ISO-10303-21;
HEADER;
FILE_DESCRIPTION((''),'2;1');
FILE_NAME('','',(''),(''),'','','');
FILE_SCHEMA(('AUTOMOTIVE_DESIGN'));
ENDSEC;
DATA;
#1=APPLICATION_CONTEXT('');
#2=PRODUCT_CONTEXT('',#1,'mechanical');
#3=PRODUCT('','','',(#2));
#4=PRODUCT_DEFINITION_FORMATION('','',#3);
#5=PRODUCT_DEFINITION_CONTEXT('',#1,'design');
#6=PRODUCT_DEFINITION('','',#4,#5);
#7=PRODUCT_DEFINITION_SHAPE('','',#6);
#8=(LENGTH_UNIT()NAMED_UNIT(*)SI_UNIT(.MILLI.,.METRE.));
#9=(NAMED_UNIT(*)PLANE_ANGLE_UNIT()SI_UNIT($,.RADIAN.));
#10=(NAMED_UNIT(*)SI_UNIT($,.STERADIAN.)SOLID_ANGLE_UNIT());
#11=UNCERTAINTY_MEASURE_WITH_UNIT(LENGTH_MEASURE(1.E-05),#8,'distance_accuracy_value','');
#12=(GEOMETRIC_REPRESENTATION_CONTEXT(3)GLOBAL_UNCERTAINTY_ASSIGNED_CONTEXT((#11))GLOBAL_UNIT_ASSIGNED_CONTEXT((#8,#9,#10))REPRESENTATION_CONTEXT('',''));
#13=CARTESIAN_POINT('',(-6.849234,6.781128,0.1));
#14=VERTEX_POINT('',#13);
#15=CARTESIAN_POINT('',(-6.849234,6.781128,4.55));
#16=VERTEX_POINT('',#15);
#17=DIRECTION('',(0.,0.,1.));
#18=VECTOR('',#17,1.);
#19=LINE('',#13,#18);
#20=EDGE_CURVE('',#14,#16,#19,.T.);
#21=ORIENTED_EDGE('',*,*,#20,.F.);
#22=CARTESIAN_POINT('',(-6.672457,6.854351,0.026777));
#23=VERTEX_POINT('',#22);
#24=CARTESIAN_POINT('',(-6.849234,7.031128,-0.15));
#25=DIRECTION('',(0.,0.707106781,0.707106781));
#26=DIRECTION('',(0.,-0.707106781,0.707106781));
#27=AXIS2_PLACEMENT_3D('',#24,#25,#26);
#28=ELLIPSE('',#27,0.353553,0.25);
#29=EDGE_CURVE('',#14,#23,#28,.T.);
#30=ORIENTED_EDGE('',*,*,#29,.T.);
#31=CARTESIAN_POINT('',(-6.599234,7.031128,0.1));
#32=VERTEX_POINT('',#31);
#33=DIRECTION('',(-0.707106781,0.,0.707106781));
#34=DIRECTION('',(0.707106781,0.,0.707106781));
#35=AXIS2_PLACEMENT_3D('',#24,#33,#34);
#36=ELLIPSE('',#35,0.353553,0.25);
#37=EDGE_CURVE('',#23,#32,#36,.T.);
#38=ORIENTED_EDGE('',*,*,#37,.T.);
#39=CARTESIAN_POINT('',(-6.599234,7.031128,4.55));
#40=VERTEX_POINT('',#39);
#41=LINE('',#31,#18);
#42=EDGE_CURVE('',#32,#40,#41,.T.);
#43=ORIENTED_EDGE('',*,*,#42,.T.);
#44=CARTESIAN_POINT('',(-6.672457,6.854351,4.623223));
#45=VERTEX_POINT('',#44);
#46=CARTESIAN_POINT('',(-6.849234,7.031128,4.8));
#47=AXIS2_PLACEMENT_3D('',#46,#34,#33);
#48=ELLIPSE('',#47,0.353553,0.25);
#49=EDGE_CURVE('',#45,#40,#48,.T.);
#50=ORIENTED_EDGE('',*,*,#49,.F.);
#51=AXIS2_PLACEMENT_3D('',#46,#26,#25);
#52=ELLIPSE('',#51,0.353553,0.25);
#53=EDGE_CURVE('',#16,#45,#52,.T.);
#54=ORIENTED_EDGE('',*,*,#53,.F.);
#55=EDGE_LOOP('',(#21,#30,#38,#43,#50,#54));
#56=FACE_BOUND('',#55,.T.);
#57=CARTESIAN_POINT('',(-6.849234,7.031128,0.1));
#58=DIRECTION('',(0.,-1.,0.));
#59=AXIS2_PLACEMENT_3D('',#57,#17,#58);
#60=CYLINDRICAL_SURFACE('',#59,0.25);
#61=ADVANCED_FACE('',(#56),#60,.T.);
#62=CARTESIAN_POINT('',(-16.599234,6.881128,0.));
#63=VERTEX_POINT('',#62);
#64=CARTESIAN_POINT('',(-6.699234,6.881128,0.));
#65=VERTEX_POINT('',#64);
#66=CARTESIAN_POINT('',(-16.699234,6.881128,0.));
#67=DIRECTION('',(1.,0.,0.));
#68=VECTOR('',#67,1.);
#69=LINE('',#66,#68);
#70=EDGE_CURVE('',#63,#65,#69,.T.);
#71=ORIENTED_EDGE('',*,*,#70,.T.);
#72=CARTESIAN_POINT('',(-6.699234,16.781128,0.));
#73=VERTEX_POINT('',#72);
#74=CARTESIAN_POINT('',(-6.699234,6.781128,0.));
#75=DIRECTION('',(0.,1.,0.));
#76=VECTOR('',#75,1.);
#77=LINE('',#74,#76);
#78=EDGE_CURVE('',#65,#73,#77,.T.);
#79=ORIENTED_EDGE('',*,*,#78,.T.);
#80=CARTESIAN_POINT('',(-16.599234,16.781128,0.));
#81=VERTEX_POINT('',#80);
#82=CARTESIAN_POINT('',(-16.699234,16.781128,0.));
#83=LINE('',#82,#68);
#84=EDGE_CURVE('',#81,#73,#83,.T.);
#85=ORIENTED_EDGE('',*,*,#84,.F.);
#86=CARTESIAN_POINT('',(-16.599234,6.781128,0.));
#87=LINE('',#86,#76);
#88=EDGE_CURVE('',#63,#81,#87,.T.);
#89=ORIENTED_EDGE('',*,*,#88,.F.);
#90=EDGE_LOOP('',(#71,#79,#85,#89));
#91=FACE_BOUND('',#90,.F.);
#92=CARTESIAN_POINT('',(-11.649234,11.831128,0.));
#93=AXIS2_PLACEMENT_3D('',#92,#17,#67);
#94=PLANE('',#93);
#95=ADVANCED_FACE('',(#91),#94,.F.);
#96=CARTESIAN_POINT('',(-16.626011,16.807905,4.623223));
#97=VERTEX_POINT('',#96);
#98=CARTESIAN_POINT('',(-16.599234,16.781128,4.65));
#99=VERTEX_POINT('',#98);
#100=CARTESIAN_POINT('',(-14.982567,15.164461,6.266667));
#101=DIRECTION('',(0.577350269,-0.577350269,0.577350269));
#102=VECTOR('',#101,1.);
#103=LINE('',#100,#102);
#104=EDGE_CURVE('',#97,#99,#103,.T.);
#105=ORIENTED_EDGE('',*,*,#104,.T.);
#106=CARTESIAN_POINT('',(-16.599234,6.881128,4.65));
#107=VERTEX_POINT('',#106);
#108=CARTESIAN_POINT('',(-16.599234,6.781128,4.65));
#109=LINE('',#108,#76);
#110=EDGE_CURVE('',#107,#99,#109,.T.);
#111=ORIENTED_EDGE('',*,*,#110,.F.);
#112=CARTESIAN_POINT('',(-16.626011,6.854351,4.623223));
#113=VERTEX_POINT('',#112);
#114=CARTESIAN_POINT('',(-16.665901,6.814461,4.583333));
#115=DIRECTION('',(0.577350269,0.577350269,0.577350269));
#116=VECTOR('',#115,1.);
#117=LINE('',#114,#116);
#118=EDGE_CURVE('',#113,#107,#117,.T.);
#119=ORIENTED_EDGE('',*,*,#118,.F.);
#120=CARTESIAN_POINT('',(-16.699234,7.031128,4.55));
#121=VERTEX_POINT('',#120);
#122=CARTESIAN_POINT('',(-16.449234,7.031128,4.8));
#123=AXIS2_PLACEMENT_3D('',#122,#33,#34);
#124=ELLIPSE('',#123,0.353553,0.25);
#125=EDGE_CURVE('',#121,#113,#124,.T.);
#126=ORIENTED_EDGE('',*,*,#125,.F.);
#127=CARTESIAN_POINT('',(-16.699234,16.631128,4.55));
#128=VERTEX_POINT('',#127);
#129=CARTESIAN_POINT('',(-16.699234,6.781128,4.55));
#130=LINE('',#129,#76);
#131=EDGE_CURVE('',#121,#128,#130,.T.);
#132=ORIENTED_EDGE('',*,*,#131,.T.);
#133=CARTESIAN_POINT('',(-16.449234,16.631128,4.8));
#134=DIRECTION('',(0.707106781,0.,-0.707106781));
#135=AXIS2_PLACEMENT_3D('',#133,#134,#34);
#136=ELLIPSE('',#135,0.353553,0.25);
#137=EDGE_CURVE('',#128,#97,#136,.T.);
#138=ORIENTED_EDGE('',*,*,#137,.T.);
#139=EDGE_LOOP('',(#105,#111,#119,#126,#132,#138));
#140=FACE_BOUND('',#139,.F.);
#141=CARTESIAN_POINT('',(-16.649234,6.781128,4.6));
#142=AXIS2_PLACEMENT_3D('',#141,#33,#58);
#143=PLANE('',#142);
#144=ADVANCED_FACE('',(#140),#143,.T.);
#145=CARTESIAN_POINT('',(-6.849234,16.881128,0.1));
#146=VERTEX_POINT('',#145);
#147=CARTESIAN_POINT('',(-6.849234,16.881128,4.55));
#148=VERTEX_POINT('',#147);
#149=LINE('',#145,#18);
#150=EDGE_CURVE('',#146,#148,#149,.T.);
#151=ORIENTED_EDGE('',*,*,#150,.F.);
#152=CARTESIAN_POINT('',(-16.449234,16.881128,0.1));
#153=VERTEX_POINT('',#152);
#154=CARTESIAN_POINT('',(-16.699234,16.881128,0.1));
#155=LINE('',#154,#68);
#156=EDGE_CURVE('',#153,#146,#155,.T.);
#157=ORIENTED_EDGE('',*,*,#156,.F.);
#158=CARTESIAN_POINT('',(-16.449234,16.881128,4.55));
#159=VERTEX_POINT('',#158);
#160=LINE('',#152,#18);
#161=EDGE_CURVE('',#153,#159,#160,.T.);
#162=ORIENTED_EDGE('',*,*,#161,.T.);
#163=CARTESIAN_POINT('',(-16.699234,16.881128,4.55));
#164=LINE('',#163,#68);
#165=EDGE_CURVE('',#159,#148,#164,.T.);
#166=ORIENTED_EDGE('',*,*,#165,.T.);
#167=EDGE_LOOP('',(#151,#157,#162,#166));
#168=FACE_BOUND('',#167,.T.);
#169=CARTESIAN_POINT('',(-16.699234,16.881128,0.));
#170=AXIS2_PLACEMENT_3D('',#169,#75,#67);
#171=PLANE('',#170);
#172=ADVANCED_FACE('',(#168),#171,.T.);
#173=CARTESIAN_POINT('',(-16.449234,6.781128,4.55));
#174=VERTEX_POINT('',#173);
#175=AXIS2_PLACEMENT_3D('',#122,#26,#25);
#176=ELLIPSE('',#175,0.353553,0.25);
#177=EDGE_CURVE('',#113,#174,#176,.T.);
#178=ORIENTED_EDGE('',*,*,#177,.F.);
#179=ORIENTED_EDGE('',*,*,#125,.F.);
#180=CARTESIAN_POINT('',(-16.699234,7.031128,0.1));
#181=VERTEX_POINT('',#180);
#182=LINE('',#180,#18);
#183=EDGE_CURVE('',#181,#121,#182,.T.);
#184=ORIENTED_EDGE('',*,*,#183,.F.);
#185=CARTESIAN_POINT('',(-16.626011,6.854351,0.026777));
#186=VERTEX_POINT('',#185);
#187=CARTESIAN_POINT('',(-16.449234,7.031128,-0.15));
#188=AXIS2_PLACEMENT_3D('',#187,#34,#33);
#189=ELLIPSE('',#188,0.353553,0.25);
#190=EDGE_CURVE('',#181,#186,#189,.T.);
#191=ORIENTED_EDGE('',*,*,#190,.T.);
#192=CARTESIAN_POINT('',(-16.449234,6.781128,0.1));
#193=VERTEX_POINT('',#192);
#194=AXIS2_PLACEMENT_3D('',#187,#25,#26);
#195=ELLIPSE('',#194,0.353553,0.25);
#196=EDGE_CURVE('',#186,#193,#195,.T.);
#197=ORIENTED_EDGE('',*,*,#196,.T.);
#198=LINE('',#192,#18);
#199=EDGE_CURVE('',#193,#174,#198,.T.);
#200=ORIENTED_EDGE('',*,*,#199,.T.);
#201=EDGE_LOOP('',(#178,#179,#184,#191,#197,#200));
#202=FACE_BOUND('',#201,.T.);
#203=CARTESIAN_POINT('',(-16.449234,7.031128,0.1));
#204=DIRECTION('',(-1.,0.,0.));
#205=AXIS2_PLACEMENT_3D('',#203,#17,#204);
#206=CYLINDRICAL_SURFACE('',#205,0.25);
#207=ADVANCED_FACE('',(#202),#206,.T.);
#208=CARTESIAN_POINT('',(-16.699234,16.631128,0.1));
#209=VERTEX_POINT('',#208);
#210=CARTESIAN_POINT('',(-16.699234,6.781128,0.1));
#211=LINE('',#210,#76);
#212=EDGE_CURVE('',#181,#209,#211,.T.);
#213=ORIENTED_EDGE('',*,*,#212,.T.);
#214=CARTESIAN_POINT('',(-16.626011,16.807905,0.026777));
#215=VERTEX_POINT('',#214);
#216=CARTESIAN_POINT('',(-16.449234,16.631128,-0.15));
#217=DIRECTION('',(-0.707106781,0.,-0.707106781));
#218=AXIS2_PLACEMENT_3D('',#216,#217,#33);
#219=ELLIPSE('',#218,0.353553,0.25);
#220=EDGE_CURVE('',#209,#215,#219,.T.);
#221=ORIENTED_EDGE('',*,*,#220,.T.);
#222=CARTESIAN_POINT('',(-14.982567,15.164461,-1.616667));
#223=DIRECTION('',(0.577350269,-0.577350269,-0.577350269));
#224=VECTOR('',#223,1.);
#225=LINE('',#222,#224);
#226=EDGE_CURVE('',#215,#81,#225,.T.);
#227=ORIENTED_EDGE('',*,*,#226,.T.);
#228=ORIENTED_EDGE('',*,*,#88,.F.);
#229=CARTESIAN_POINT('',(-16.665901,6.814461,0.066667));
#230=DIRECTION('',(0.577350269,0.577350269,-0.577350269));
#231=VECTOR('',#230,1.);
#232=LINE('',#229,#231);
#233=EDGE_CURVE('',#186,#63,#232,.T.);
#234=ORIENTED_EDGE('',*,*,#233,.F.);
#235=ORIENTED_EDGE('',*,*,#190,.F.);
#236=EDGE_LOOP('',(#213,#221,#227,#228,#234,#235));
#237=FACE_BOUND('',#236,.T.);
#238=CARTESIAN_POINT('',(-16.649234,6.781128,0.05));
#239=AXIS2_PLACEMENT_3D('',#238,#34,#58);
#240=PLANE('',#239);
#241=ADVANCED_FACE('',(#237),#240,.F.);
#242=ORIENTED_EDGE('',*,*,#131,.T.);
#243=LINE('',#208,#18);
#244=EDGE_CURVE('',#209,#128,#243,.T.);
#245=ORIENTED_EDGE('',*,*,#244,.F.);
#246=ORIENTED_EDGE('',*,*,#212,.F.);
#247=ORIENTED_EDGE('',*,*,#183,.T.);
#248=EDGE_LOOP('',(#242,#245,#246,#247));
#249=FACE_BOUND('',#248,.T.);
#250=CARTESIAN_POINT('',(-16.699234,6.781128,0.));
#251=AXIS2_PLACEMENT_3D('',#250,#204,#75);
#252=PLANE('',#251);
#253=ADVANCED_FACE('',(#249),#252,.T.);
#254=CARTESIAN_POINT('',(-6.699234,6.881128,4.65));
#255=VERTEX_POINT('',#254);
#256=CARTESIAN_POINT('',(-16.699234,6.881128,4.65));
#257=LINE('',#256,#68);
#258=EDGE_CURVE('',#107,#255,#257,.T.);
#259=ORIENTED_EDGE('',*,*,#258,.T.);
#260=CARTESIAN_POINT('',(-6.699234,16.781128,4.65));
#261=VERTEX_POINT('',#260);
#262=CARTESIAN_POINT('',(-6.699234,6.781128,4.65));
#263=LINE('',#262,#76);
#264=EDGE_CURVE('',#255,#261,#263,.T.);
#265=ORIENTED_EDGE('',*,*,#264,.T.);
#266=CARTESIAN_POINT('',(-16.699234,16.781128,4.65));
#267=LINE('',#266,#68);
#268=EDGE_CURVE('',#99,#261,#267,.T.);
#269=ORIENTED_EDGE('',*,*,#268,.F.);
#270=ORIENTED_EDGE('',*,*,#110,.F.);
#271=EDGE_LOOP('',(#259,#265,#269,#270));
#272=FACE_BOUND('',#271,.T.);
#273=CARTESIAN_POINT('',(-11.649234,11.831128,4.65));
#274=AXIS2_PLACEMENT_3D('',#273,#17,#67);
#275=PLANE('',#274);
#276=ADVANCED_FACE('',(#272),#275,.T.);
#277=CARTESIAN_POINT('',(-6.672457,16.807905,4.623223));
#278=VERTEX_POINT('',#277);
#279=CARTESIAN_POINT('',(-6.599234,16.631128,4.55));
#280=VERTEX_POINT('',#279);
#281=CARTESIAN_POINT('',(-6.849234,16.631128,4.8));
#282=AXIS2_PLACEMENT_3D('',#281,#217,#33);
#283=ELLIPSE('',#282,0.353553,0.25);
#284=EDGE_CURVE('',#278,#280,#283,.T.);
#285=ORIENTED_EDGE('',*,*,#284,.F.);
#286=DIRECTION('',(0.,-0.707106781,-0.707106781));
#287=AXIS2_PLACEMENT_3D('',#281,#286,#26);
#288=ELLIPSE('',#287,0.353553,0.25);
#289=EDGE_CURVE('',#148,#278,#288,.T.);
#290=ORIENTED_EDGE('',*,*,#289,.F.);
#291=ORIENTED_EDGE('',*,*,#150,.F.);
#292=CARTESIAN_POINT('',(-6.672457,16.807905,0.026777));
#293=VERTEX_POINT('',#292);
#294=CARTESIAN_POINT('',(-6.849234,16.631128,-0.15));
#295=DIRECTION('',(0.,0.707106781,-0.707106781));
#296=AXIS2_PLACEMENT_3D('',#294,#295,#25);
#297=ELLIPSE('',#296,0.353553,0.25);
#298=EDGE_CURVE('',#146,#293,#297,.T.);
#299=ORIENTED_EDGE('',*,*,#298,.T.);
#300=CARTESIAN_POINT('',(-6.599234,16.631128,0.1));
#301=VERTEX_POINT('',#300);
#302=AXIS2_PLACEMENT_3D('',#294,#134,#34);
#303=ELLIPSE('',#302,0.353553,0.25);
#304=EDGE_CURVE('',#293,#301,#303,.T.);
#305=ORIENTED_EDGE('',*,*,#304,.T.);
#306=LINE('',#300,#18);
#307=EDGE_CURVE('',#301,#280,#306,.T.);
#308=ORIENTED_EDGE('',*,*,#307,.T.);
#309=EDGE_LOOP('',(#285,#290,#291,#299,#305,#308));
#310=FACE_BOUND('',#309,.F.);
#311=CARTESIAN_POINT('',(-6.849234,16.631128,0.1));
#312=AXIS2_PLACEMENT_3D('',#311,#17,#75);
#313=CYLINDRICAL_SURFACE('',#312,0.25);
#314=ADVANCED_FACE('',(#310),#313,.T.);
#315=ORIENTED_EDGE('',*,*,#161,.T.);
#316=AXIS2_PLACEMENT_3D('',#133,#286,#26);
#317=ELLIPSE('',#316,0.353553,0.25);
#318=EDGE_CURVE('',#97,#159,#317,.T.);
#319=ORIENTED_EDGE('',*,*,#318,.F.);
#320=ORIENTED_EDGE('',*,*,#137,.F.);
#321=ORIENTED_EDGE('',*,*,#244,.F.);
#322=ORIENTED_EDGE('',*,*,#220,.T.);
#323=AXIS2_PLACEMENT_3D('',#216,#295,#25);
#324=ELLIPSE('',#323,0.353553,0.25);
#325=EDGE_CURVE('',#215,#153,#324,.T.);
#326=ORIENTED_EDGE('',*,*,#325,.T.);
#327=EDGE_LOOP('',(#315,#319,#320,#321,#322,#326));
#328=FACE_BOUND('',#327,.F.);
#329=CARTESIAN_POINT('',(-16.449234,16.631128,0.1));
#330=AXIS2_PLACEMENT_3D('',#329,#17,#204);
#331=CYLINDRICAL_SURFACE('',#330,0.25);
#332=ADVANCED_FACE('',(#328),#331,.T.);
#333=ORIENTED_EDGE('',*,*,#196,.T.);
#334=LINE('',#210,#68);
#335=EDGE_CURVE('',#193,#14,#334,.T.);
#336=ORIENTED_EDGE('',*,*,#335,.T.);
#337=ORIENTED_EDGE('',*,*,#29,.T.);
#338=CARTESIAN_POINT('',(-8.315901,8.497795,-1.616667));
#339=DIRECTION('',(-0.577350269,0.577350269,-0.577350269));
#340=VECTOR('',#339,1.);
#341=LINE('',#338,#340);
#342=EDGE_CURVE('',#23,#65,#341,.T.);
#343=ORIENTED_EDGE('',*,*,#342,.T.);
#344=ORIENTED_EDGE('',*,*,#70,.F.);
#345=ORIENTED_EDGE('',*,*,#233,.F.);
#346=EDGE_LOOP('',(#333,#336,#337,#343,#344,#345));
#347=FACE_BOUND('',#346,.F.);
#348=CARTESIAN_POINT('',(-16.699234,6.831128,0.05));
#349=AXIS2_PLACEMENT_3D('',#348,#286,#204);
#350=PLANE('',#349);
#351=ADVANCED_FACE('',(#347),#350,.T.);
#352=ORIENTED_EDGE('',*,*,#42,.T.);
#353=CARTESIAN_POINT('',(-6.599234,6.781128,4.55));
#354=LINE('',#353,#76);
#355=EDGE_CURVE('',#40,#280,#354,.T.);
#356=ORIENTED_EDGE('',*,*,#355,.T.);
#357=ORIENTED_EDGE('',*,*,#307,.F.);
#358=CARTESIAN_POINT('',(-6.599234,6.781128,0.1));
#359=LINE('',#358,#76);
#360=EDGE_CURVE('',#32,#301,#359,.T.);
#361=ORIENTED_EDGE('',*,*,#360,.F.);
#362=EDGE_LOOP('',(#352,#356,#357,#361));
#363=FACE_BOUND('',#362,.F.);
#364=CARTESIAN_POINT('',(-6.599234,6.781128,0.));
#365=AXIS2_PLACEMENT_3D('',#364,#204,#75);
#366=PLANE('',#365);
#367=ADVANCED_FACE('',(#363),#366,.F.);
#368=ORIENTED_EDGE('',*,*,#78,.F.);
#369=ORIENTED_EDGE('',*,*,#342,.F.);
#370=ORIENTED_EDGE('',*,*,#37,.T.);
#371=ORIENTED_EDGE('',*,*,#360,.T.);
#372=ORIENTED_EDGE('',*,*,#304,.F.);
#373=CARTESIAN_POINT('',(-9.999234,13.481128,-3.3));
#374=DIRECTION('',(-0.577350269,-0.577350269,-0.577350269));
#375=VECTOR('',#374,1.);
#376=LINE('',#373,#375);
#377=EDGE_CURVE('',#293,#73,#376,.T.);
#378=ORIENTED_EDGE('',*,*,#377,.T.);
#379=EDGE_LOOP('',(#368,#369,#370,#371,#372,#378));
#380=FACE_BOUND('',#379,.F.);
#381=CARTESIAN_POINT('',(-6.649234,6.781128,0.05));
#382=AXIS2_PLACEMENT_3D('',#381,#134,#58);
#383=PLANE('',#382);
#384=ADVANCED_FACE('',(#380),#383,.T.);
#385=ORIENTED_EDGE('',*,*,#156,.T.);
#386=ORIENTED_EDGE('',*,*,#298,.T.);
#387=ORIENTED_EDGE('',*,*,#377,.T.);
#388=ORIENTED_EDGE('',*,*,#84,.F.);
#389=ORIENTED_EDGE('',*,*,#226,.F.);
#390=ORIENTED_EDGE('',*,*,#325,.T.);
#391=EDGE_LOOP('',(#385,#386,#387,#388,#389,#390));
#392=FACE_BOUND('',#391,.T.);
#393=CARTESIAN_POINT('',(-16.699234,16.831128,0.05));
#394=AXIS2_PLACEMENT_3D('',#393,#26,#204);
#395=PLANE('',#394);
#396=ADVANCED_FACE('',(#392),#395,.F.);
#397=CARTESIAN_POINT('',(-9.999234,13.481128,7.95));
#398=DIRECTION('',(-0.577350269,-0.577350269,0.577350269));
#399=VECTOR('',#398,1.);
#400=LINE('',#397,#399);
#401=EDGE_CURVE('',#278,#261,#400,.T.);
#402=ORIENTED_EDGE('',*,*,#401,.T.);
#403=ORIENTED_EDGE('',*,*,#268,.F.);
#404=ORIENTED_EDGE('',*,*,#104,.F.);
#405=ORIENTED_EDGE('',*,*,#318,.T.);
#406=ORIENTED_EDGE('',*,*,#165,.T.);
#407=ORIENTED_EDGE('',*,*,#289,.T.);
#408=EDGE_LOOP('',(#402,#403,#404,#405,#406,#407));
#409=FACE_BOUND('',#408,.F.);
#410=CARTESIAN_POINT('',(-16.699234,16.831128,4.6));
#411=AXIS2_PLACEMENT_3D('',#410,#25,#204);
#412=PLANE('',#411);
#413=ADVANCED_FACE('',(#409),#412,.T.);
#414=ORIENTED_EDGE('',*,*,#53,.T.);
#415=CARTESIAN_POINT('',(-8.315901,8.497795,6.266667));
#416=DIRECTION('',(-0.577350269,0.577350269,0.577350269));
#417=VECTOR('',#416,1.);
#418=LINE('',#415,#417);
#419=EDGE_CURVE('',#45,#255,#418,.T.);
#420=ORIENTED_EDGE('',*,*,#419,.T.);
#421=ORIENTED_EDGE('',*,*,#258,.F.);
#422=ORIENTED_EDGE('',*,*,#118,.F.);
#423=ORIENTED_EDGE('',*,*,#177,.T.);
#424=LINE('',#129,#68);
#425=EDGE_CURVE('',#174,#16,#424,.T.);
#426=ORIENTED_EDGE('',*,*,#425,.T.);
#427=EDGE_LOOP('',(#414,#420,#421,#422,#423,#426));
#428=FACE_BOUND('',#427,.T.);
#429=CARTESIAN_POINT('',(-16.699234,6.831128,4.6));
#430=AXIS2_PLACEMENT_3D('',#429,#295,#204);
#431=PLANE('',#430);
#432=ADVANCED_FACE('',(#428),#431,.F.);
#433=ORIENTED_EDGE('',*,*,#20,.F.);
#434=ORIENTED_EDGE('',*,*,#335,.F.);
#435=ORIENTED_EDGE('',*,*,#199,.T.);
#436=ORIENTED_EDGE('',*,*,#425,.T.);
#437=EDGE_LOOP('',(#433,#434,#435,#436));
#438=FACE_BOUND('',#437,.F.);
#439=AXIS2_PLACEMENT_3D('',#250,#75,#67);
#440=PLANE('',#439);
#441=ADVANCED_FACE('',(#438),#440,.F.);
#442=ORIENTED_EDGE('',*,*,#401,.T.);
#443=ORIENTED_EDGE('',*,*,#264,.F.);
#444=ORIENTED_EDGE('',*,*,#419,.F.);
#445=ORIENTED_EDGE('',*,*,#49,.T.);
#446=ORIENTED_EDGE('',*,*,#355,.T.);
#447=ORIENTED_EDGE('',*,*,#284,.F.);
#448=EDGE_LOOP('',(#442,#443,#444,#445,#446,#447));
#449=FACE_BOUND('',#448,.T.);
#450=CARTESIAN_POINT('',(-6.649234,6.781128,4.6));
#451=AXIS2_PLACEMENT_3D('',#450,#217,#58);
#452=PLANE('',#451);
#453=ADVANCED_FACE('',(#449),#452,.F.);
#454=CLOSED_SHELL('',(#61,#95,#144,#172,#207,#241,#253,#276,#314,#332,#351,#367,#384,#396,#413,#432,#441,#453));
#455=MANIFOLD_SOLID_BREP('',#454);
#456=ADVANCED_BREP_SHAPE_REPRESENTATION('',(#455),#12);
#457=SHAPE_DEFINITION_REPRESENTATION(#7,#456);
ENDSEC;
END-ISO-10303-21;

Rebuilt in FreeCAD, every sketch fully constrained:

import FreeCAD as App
import Part
import Sketcher
Q = App.Units.Quantity


def edges_at(feature, points):
    """Names of the edges that pass closest to the given points."""
    edges = feature.Shape.Edges
    near = lambda p: min(range(len(edges)), key=lambda i: edges[i].distToShape(Part.Vertex(*p))[0])
    return sorted({f"Edge{near(p) + 1}" for p in points})


def add_polygon(sketch, points):
    """Adds a closed chain of lines whose ends are joined by coincident constraints."""
    first, n = sketch.GeometryCount, len(points)
    for a, b in zip(points, points[1:] + points[:1]):
        sketch.addGeometry(Part.LineSegment(App.Vector(*a, 0), App.Vector(*b, 0)), False)
    for i in range(n):
        sketch.addConstraint(Sketcher.Constraint("Coincident", first + i, 2, first + (i + 1) % n, 1))

doc = App.newDocument("Part")
body = doc.addObject("PartDesign::Body", "Body")

sketch1 = body.newObject("Sketcher::SketchObject", "Sketch")
sketch1.AttachmentSupport = (doc.getObject("XY_Plane"), [""])
sketch1.MapMode = "FlatFace"
add_polygon(sketch1, [(-16.699234, 16.881128), (-16.699234, 6.781128), (-6.599234, 6.781128), (-6.599234, 16.881128)])
sketch1.addConstraint([
    Sketcher.Constraint("Vertical", 0),
    Sketcher.Constraint("Horizontal", 1),
    Sketcher.Constraint("Vertical", 2),
    Sketcher.Constraint("Horizontal", 3),
    Sketcher.Constraint("Equal", 3, 0),
    Sketcher.Constraint("DistanceX", 1, 1, 1, 2, Q("10.1 mm")),
    Sketcher.Constraint("DistanceY", -1, 1, 2, 2, Q("16.881128 mm")),
    Sketcher.Constraint("DistanceX", 0, 2, -1, 1, Q("16.699234 mm")),
])
pad1 = body.newObject("PartDesign::Pad", "Pad")
pad1.Profile = sketch1
pad1.Length = 4.65
doc.recompute()

chamfer = body.newObject("PartDesign::Chamfer", "Chamfer")
chamfer.Base = (pad1, edges_at(pad1, [
    (-16.699, 11.831, 4.65),
    (-11.649, 6.781, 4.65),
    (-6.599, 11.831, 4.65),
    (-11.649, 16.881, 4.65),
    (-16.699, 11.831, 0),
    (-11.649, 6.781, 0),
    (-6.599, 11.831, 0),
    (-11.649, 16.881, 0),
]))
chamfer.Size = 0.1
doc.recompute()

fillet = body.newObject("PartDesign::Fillet", "Fillet")
fillet.Base = (chamfer, edges_at(chamfer, [
    (-16.699, 6.781, 2.325),
    (-6.599, 6.781, 2.325),
    (-6.599, 16.881, 2.325),
    (-16.699, 16.881, 2.325),
]))
fillet.Radius = 0.25

doc.recompute()
